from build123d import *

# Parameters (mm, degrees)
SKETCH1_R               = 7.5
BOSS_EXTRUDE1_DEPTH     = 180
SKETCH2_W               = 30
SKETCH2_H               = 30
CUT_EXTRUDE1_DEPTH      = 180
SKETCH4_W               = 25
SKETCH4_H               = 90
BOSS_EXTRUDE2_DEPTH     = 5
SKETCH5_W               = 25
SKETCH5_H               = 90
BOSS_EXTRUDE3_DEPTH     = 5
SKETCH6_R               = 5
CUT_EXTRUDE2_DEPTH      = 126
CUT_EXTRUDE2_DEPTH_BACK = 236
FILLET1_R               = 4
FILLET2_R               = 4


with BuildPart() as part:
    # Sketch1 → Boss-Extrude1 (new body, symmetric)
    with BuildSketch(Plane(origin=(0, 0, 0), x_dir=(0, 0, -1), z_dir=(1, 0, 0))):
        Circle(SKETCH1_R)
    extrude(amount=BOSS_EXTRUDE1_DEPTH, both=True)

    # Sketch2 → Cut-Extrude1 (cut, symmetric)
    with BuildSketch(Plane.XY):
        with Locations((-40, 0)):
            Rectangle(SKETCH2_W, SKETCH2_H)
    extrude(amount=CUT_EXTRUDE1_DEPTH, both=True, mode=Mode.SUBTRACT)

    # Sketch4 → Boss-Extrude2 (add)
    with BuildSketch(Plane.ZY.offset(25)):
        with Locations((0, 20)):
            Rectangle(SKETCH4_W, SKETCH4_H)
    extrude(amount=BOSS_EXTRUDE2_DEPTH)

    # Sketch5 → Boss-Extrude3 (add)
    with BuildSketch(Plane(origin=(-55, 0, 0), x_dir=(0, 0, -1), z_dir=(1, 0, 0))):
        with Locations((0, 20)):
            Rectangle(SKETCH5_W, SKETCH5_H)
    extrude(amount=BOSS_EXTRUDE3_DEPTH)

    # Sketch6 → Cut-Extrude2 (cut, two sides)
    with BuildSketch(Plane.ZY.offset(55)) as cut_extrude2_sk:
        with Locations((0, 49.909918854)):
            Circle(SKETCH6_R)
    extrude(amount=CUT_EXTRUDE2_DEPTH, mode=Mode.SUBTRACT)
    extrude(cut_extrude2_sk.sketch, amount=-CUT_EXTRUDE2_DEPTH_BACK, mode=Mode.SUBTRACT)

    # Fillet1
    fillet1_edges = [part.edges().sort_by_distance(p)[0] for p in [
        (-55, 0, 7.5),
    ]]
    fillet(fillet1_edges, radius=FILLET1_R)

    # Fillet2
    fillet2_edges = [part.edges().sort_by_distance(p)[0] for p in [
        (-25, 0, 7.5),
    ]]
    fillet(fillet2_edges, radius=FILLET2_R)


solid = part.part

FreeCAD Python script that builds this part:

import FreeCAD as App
import Part
import Sketcher


def edges_at(feature, points):
    """Names of the edges that pass closest to the given points."""
    edges = feature.Shape.Edges
    near = lambda p: min(range(len(edges)), key=lambda i: edges[i].distToShape(Part.Vertex(*p))[0])
    return sorted({f"Edge{near(p) + 1}" for p in points})


def add_polygon(sketch, points):
    """Adds a closed chain of lines whose ends are joined by coincident constraints."""
    first, n = sketch.GeometryCount, len(points)
    for a, b in zip(points, points[1:] + points[:1]):
        sketch.addGeometry(Part.LineSegment(App.Vector(*a, 0), App.Vector(*b, 0)), False)
    for i in range(n):
        sketch.addConstraint(Sketcher.Constraint("Coincident", first + i, 2, first + (i + 1) % n, 1))

doc = App.newDocument("Part")
body = doc.addObject("PartDesign::Body", "Body")
body.AllowCompound = True

# Sketch on YZ plane
sketch1 = body.newObject("Sketcher::SketchObject", "Sketch")
sketch1.AttachmentSupport = (doc.getObject("YZ_Plane"), [""])
sketch1.MapMode = "FlatFace"
sketch1.addGeometry(Part.Circle(App.Vector(0, 0, 0), App.Vector(0, 0, 1), 8), False)
sketch1.addConstraint(Sketcher.Constraint("Coincident", 0, 3, -1, 1))
sketch1.addConstraint(Sketcher.Constraint("Diameter", 0, 15.0))
pad1 = body.newObject("PartDesign::Pad", "Pad")
pad1.Profile = sketch1
pad1.Length = 360
pad1.Midplane = True

# Sketch on XY plane
sketch2 = body.newObject("Sketcher::SketchObject", "Sketch001")
sketch2.AttachmentSupport = (doc.getObject("XY_Plane"), [""])
sketch2.MapMode = "FlatFace"
add_polygon(sketch2, [(-55, 15), (-55, -15), (-25, -15), (-25, 15)])  # lines 0-3
sketch2.addConstraint(Sketcher.Constraint("Vertical", 0))
sketch2.addConstraint(Sketcher.Constraint("Horizontal", 1))
sketch2.addConstraint(Sketcher.Constraint("Vertical", 2))
sketch2.addConstraint(Sketcher.Constraint("Horizontal", 3))
sketch2.addConstraint(Sketcher.Constraint("Equal", 3, 0))
sketch2.addConstraint(Sketcher.Constraint("DistanceX", 1, 1, 1, 2, 30.0))
sketch2.addConstraint(Sketcher.Constraint("DistanceX", 0, 2, -1, 1, 55.0))
sketch2.addConstraint(Sketcher.Constraint("DistanceY", 0, 2, -1, 1, 15.0))
pocket1 = body.newObject("PartDesign::Pocket", "Pocket")
pocket1.Profile = sketch2
pocket1.Length = 360
pocket1.Midplane = True

# Sketch on YZ plane
sketch3 = body.newObject("Sketcher::SketchObject", "Sketch002")
sketch3.AttachmentSupport = (doc.getObject("YZ_Plane"), [""])
sketch3.MapMode = "FlatFace"
sketch3.AttachmentOffset = App.Placement(App.Vector(0, 0, -25), App.Rotation())
add_polygon(sketch3, [(65, -12), (-25, -12), (-25, 12), (65, 12)])  # lines 0-3
sketch3.addConstraint(Sketcher.Constraint("Horizontal", 0))
sketch3.addConstraint(Sketcher.Constraint("Vertical", 1))
sketch3.addConstraint(Sketcher.Constraint("Horizontal", 2))
sketch3.addConstraint(Sketcher.Constraint("Vertical", 3))
sketch3.addConstraint(Sketcher.Constraint("DistanceX", 0, 2, 0, 1, 90.0))
sketch3.addConstraint(Sketcher.Constraint("DistanceY", 1, 1, 1, 2, 25.0))
sketch3.addConstraint(Sketcher.Constraint("DistanceX", 0, 2, -1, 1, 25.0))
sketch3.addConstraint(Sketcher.Constraint("DistanceY", 0, 2, -1, 1, 12.5))
pad2 = body.newObject("PartDesign::Pad", "Pad001")
pad2.Profile = sketch3
pad2.Length = 5
pad2.Reversed = True

# Sketch on YZ plane
sketch4 = body.newObject("Sketcher::SketchObject", "Sketch003")
sketch4.AttachmentSupport = (doc.getObject("YZ_Plane"), [""])
sketch4.MapMode = "FlatFace"
sketch4.AttachmentOffset = App.Placement(App.Vector(0, 0, -55), App.Rotation())
add_polygon(sketch4, [(65, 12), (-25, 12), (-25, -12), (65, -12)])  # lines 0-3
sketch4.addConstraint(Sketcher.Constraint("Horizontal", 0))
sketch4.addConstraint(Sketcher.Constraint("Vertical", 1))
sketch4.addConstraint(Sketcher.Constraint("Horizontal", 2))
sketch4.addConstraint(Sketcher.Constraint("Vertical", 3))
sketch4.addConstraint(Sketcher.Constraint("DistanceX", 0, 2, 0, 1, 90.0))
sketch4.addConstraint(Sketcher.Constraint("DistanceY", 1, 2, 1, 1, 25.0))
sketch4.addConstraint(Sketcher.Constraint("DistanceX", 0, 2, -1, 1, 25.0))
sketch4.addConstraint(Sketcher.Constraint("DistanceY", -1, 1, 0, 2, 12.5))
pad3 = body.newObject("PartDesign::Pad", "Pad002")
pad3.Profile = sketch4
pad3.Length = 5

# Sketch on YZ plane
sketch5 = body.newObject("Sketcher::SketchObject", "Sketch004")
sketch5.AttachmentSupport = (doc.getObject("YZ_Plane"), [""])
sketch5.MapMode = "FlatFace"
sketch5.AttachmentOffset = App.Placement(App.Vector(0, 0, -55), App.Rotation())
sketch5.addGeometry(Part.Circle(App.Vector(50, 0, 0), App.Vector(0, 0, 1), 5), False)
sketch5.addConstraint(Sketcher.Constraint("PointOnObject", 0, 3, -1))
sketch5.addConstraint(Sketcher.Constraint("Diameter", 0, 10.0))
sketch5.addConstraint(Sketcher.Constraint("DistanceX", -1, 1, 0, 3, 49.909919))
pocket2 = body.newObject("PartDesign::Pocket", "Pocket001")
pocket2.Profile = sketch5
pocket2.Type = "ThroughAll"
pocket2.Midplane = True
doc.recompute()

fillet = body.newObject("PartDesign::Fillet", "Fillet")
fillet.Base = (pocket2, edges_at(pocket2, [(-55, 0, 7.5)]))
fillet.Radius = 4
doc.recompute()

fillet2 = body.newObject("PartDesign::Fillet", "Fillet001")
fillet2.Base = (fillet, edges_at(fillet, [(-25, 0, 7.5)]))
fillet2.Radius = 4

doc.recompute()
